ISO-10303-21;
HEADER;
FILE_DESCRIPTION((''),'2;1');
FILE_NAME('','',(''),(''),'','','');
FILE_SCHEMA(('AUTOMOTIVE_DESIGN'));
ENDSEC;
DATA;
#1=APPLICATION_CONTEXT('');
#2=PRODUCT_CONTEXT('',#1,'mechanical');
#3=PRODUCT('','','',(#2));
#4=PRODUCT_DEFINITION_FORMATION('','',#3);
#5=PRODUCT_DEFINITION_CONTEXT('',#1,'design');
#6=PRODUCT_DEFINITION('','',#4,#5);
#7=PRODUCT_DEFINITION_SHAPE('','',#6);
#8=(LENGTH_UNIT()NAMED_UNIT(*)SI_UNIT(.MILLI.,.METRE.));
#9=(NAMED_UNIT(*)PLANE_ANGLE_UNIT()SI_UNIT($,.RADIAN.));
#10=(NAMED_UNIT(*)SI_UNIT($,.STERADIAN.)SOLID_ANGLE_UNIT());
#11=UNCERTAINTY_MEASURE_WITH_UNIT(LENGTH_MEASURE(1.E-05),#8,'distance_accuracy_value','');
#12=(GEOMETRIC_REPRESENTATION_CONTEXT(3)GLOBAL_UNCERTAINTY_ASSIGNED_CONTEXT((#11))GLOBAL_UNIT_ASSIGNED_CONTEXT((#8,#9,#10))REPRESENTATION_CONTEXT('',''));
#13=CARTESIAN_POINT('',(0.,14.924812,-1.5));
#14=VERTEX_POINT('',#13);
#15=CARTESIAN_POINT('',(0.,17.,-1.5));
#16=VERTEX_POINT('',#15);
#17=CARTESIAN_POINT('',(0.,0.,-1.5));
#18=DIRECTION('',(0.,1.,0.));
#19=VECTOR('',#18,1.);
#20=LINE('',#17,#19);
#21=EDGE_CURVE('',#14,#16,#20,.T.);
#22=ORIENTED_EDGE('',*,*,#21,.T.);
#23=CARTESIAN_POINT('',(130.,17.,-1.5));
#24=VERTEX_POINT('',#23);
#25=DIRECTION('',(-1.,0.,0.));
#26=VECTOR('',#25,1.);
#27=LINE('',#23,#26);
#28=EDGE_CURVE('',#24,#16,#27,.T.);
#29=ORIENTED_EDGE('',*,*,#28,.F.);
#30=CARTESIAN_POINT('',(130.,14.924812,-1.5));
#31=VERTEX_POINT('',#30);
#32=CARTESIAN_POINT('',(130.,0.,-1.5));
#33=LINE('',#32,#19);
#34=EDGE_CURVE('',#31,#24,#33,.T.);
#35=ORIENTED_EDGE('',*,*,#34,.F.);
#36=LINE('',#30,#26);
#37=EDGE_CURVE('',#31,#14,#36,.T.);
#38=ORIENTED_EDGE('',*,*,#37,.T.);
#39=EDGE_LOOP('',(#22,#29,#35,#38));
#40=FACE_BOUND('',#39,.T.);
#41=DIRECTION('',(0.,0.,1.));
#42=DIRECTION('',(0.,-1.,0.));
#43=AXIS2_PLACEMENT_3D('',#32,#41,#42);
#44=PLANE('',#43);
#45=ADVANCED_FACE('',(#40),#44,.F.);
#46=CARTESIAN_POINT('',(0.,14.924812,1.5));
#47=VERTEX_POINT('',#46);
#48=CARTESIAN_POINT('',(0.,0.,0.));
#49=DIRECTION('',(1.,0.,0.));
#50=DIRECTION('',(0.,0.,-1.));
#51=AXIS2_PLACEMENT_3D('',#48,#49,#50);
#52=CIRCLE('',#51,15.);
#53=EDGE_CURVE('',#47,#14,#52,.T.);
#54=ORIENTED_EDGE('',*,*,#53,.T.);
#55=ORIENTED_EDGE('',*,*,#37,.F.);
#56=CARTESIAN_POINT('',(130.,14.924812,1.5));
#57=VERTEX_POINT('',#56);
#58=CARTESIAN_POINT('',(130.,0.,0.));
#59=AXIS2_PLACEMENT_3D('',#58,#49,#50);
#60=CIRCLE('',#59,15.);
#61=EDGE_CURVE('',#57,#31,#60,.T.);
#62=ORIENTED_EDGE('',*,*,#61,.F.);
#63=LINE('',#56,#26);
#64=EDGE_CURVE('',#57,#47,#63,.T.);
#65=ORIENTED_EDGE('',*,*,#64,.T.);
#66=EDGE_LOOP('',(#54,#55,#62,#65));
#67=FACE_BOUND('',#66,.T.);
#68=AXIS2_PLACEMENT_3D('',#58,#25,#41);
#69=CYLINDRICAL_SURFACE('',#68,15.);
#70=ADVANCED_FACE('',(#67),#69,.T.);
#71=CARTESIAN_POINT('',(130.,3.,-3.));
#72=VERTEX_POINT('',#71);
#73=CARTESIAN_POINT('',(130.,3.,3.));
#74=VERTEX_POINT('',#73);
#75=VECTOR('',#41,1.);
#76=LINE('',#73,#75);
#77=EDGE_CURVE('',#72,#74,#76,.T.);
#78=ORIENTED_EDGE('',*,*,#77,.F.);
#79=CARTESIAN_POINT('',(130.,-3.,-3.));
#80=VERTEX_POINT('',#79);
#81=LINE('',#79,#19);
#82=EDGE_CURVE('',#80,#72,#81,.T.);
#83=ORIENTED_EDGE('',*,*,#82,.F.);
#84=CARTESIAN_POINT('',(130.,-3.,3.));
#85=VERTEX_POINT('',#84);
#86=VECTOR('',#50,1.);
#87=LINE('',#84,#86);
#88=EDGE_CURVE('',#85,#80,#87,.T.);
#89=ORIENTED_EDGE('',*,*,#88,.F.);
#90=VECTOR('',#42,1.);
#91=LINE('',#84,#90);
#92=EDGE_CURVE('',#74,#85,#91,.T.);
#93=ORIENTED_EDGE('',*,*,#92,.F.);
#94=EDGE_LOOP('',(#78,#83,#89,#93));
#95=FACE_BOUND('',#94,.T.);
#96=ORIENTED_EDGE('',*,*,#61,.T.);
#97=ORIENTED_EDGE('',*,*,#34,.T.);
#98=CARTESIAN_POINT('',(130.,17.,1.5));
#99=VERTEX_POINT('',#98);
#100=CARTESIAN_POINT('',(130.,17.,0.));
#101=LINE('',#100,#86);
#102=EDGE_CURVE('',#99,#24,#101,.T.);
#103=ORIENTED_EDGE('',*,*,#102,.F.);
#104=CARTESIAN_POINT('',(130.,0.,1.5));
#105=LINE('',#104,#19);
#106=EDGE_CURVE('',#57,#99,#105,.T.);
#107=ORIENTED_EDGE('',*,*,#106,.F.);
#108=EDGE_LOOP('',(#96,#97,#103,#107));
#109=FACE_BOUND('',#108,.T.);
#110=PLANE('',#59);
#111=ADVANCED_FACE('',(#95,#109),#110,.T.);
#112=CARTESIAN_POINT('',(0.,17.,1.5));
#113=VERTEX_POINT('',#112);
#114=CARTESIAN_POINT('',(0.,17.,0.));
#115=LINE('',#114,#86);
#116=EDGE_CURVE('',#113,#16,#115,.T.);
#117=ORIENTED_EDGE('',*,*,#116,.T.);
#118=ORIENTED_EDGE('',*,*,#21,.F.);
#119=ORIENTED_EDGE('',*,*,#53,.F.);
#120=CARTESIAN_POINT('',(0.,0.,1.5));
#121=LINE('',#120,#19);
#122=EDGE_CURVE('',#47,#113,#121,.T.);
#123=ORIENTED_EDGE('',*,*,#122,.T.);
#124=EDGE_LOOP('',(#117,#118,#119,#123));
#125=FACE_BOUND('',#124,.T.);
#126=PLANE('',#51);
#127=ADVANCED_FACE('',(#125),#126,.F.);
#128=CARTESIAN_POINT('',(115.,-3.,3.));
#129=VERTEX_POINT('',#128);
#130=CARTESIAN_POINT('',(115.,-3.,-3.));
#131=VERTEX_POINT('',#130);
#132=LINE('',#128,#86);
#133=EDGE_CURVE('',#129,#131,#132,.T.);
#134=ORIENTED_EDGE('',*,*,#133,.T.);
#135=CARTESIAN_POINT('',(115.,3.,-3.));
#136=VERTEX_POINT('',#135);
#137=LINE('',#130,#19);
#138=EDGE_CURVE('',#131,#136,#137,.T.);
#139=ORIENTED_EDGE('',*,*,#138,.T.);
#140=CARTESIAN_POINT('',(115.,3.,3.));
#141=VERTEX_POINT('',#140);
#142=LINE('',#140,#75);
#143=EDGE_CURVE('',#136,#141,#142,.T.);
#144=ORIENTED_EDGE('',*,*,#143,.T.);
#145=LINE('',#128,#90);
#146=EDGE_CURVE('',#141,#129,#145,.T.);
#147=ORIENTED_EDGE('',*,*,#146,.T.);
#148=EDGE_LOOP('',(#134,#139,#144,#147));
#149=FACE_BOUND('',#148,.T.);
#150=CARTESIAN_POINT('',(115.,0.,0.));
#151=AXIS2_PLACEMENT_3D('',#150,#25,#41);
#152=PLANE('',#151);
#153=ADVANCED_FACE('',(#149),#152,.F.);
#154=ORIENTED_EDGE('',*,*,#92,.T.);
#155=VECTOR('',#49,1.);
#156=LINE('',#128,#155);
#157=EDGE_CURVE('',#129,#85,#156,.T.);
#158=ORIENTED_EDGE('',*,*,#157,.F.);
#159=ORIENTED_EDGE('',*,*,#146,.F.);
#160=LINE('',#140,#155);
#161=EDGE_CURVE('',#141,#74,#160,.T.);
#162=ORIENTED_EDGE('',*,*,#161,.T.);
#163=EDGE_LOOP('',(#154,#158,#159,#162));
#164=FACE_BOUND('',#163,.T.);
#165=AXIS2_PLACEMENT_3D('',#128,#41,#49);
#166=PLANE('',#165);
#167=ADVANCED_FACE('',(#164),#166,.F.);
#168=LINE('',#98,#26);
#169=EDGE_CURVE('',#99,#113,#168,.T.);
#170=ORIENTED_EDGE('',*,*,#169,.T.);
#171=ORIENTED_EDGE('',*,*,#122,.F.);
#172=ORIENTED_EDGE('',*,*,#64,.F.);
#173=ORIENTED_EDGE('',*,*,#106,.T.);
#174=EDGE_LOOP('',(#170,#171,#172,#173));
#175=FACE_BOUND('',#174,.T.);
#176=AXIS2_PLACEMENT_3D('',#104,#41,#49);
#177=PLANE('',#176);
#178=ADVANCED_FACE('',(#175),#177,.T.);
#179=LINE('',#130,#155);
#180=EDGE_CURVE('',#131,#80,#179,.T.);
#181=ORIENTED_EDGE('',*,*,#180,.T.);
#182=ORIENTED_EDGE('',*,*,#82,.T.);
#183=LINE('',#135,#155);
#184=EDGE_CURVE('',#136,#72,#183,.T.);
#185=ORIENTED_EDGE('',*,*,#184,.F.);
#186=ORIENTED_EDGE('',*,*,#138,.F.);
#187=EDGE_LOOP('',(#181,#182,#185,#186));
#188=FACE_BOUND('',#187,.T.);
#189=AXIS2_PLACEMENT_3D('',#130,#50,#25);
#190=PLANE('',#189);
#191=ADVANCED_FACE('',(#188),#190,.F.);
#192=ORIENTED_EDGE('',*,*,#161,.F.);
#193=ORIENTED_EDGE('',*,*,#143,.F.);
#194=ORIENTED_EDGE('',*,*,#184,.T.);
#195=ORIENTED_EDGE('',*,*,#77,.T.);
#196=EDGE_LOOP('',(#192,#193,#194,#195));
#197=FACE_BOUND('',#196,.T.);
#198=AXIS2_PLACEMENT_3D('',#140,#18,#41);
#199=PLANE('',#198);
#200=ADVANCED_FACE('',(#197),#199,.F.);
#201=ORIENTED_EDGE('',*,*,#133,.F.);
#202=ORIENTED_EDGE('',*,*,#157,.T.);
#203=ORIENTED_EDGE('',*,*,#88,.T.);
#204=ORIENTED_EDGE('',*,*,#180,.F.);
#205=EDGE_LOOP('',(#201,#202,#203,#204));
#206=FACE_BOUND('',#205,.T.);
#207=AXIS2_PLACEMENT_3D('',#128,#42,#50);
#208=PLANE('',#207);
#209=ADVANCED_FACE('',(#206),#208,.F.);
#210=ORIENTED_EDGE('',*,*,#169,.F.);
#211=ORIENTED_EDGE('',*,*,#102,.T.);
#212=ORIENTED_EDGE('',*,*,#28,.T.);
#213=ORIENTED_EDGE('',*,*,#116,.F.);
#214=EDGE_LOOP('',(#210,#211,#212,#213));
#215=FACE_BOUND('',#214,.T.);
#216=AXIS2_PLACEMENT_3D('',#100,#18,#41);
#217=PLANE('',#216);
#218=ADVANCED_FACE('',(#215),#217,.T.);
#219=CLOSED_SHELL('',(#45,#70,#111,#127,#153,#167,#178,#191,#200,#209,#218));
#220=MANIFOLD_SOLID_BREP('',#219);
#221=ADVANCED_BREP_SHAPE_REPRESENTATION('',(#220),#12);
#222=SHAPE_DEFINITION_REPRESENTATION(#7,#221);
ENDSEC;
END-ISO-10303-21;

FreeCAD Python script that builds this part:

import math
import FreeCAD as App
import Part
import Sketcher

V = App.Vector
Q = App.Units.Quantity


def add_polygon(sketch, points):
    """Adds a closed chain of lines whose ends are joined by coincident constraints."""
    first, n = sketch.GeometryCount, len(points)
    for a, b in zip(points, points[1:] + points[:1]):
        sketch.addGeometry(Part.LineSegment(App.Vector(*a, 0), App.Vector(*b, 0)), False)
    for i in range(n):
        sketch.addConstraint(Sketcher.Constraint("Coincident", first + i, 2, first + (i + 1) % n, 1))

doc = App.newDocument("Part")
body = doc.addObject("PartDesign::Body", "Body")

sketch1 = body.newObject("Sketcher::SketchObject", "Sketch")
sketch1.AttachmentSupport = (doc.getObject("YZ_Plane"), [""])
sketch1.MapMode = "FlatFace"
sketch1.addGeometry([
    Part.ArcOfCircle(Part.Circle(V(0, 0, 0), V(0, 0, 1), 15), math.radians(5.73917), math.radians(270)),
    Part.ArcOfCircle(Part.Circle(V(0, 0, 0), V(0, 0, 1), 15), math.radians(-90), math.radians(-5.73917)),
    Part.LineSegment(V(14.924812, -1.5, 0), V(17, -1.5, 0)),
    Part.LineSegment(V(17, -1.5, 0), V(17, 1.5, 0)),
    Part.LineSegment(V(17, 1.5, 0), V(14.924812, 1.5, 0)),
], False)
sketch1.addConstraint([
    Sketcher.Constraint("Tangent", 0, 2, 1, 1),
    Sketcher.Constraint("Coincident", 1, 2, 2, 1),
    Sketcher.Constraint("Coincident", 2, 2, 3, 1),
    Sketcher.Constraint("Coincident", 3, 2, 4, 1),
    Sketcher.Constraint("Coincident", 4, 2, 0, 1),
    Sketcher.Constraint("Horizontal", 2),
    Sketcher.Constraint("Vertical", 3),
    Sketcher.Constraint("Horizontal", 4),
    Sketcher.Constraint("Coincident", 0, 3, -1, 1),
    Sketcher.Constraint("Equal", 0, 1),
    Sketcher.Constraint("PointOnObject", 0, 2, -2),
    Sketcher.Constraint("Vertical", 1, 2, 4, 2),
    Sketcher.Constraint("Radius", 0, Q("15 mm")),
    Sketcher.Constraint("DistanceY", 3, 1, 3, 2, Q("3 mm")),
    Sketcher.Constraint("DistanceX", -1, 1, 2, 2, Q("17 mm")),
])
pad1 = body.newObject("PartDesign::Pad", "Pad")
pad1.Profile = sketch1
pad1.Length = 130

sketch2 = body.newObject("Sketcher::SketchObject", "Sketch001")
sketch2.AttachmentSupport = (doc.getObject("YZ_Plane"), [""])
sketch2.MapMode = "FlatFace"
sketch2.AttachmentOffset = App.Placement(V(0, 0, 130), App.Rotation())
add_polygon(sketch2, [(3, 3), (-3, 3), (-3, -3), (3, -3)])
sketch2.addConstraint([
    Sketcher.Constraint("Horizontal", 0),
    Sketcher.Constraint("Vertical", 1),
    Sketcher.Constraint("Horizontal", 2),
    Sketcher.Constraint("Vertical", 3),
    Sketcher.Constraint("Symmetric", 0, 2, 2, 2, -1, 1),
    Sketcher.Constraint("Equal", 2, 1),
    Sketcher.Constraint("DistanceX", 0, 2, 0, 1, Q("6 mm")),
])
pocket1 = body.newObject("PartDesign::Pocket", "Pocket")
pocket1.Profile = sketch2
pocket1.Length = 15

doc.recompute()
